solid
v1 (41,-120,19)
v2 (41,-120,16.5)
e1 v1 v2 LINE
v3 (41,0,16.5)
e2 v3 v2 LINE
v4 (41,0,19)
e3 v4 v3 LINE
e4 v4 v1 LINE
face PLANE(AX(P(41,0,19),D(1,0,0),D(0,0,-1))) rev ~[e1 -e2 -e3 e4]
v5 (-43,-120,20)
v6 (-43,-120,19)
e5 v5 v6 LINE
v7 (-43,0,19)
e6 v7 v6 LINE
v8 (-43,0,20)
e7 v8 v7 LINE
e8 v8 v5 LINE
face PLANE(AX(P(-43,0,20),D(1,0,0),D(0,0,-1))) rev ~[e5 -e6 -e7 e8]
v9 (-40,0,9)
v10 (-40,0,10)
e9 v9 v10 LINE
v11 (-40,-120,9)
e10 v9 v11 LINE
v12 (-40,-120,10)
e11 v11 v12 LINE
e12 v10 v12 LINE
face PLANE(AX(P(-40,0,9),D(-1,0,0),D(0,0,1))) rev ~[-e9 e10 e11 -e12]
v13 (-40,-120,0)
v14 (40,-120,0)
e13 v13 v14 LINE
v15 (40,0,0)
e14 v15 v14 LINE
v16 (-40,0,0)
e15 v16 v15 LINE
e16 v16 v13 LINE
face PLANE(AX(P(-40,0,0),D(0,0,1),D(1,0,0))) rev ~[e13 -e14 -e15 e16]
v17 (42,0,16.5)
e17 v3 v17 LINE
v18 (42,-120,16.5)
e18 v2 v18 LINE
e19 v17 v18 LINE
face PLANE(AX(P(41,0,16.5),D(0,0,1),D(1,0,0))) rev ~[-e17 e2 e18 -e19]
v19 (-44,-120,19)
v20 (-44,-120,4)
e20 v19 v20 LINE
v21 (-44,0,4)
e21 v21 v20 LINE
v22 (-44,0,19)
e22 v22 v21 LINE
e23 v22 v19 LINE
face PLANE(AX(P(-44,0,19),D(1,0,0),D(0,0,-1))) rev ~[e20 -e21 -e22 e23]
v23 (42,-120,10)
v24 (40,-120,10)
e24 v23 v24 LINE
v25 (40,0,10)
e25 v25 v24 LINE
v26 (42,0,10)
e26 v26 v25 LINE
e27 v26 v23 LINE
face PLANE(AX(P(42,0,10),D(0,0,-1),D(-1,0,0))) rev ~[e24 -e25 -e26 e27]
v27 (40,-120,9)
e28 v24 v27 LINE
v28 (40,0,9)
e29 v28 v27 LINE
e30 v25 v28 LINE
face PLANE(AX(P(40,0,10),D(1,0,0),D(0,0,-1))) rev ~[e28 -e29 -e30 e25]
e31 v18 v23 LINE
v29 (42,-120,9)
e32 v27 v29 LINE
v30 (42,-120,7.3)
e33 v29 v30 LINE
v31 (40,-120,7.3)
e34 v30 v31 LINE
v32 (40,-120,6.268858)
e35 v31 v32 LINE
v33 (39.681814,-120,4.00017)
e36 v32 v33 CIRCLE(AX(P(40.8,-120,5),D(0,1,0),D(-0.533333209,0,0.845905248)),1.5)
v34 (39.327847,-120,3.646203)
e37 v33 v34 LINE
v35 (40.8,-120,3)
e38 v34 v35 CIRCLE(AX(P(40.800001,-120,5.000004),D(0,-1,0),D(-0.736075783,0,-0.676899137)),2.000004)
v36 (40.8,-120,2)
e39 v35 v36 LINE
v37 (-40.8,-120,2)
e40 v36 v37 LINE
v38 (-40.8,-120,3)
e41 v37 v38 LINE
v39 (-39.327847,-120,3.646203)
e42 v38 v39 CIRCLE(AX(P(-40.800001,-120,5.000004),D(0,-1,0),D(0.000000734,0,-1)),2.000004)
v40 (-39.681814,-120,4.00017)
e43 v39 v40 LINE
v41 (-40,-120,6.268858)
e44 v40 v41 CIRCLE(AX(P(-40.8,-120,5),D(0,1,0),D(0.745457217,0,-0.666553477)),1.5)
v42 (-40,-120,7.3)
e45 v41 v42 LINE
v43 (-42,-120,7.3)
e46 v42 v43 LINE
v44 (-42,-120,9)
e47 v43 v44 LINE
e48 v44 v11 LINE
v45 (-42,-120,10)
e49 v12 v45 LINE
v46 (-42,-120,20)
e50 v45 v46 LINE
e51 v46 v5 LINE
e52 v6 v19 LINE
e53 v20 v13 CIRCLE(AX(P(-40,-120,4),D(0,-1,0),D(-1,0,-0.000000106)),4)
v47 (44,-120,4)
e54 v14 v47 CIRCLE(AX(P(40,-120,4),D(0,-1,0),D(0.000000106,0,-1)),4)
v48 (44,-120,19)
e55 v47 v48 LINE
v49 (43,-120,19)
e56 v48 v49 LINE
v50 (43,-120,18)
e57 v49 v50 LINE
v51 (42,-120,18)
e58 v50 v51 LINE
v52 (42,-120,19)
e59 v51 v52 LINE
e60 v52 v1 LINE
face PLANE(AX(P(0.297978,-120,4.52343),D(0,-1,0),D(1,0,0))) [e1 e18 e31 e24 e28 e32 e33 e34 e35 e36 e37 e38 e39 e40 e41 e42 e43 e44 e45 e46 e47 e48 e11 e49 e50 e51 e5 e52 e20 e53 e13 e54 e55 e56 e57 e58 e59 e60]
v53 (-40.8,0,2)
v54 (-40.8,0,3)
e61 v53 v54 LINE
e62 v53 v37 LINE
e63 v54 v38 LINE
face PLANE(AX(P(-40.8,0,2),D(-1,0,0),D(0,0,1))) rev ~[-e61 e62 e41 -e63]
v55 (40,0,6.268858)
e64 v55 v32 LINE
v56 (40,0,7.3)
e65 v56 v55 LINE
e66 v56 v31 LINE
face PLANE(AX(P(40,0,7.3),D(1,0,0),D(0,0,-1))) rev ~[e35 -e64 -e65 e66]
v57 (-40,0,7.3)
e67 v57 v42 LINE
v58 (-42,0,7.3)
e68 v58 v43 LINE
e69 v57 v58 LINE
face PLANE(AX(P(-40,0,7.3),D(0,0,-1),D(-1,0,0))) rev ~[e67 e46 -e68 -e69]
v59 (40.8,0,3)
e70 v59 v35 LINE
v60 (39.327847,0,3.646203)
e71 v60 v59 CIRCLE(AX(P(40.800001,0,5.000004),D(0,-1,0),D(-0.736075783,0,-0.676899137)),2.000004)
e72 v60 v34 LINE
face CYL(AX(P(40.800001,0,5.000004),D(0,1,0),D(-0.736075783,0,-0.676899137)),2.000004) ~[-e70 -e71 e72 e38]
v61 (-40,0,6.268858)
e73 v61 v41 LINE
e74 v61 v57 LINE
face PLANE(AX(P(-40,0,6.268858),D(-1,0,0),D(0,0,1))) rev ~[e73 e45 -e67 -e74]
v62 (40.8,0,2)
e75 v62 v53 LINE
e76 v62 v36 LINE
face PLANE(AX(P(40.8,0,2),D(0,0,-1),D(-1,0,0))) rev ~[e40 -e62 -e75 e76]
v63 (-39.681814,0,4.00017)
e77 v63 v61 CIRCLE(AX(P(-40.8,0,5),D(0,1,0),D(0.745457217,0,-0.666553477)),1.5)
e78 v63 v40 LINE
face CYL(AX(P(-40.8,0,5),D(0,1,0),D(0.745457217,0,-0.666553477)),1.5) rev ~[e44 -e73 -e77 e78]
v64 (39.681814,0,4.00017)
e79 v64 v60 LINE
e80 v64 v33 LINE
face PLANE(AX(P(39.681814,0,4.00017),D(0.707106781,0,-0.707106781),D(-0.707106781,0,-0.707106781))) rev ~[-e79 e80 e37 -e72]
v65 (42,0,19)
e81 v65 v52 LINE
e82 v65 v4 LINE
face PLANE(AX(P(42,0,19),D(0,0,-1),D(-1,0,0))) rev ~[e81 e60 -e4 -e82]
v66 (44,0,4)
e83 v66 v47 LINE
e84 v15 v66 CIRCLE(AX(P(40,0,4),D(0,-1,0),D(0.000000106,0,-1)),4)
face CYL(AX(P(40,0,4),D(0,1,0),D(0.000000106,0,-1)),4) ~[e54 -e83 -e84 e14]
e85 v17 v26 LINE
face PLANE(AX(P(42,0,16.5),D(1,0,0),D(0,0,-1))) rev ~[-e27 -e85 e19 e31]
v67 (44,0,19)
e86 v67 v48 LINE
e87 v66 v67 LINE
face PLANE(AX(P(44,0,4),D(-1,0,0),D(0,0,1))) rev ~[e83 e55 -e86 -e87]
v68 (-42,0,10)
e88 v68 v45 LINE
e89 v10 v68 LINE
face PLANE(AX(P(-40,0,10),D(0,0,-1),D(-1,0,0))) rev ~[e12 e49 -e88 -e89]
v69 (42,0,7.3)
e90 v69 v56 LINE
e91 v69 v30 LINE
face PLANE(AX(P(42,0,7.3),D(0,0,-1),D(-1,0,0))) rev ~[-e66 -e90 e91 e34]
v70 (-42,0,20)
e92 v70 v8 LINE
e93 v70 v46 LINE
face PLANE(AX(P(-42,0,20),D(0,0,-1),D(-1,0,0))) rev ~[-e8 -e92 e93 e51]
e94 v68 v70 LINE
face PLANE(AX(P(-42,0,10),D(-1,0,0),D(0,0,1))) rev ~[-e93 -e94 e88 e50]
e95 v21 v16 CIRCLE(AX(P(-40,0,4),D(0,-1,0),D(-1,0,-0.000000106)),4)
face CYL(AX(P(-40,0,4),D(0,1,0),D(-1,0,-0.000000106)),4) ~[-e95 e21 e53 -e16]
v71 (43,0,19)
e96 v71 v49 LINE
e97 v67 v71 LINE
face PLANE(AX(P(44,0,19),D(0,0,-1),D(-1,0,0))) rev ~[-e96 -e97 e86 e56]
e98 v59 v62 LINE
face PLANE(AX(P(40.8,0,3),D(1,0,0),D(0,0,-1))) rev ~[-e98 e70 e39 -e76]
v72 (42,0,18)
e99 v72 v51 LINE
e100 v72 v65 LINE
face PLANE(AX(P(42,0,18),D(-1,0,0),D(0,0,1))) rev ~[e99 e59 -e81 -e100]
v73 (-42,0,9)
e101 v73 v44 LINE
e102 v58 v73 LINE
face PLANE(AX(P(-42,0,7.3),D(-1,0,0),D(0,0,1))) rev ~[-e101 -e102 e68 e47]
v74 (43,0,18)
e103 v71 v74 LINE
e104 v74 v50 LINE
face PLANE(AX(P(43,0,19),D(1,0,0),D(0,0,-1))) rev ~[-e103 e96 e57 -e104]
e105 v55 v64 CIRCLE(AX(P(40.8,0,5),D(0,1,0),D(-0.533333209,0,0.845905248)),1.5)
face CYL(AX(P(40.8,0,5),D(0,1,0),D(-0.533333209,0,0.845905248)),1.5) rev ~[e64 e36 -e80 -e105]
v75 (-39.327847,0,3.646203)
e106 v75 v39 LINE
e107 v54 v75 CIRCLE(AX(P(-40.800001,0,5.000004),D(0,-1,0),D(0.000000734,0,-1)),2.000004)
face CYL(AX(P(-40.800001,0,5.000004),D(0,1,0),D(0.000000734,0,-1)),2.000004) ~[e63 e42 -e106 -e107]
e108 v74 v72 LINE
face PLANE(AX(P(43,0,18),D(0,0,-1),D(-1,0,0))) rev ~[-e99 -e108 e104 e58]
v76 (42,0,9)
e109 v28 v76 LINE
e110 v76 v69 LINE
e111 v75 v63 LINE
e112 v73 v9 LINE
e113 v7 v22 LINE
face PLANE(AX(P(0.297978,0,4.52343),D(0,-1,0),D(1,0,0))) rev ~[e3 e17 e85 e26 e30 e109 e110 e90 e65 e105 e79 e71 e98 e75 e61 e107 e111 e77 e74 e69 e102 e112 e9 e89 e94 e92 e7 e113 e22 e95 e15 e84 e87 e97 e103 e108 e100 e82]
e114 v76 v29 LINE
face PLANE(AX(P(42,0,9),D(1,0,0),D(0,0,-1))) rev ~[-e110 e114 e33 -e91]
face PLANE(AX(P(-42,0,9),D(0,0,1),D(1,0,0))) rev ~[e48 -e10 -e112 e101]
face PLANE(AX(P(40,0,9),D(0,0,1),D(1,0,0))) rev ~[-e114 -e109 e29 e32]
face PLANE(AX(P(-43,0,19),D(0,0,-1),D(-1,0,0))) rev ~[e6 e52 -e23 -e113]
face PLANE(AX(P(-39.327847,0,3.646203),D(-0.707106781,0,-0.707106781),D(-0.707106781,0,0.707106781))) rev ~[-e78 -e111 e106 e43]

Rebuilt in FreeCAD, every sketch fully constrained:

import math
import FreeCAD as App
import Part
import Sketcher
from FreeCAD import Vector

doc = App.newDocument("Part")
body = doc.addObject("PartDesign::Body", "Body")

# Sketch on XZ plane
sketch1 = doc.addObject("Sketcher::SketchObject", "Sketch")
body.addObject(sketch1)
sketch1.AttachmentSupport = (doc.XZ_Plane, [""])
sketch1.MapMode = "FlatFace"
sketch1.addGeometry(Part.ArcOfCircle(Part.Circle(Vector(-40, 4, 0), Vector(0, 0, 1), 4), math.radians(-180), math.radians(-90)), False)
sketch1.addGeometry(Part.LineSegment(Vector(-40, 0, 0), Vector(40, 0, 0)), False)
sketch1.addGeometry(Part.ArcOfCircle(Part.Circle(Vector(40, 4, 0), Vector(0, 0, 1), 4), math.radians(-90), math.radians(0)), False)
sketch1.addGeometry(Part.LineSegment(Vector(44, 4, 0), Vector(44, 19, 0)), False)
sketch1.addGeometry(Part.LineSegment(Vector(44, 19, 0), Vector(43, 19, 0)), False)
sketch1.addGeometry(Part.LineSegment(Vector(43, 19, 0), Vector(43, 18, 0)), False)
sketch1.addGeometry(Part.LineSegment(Vector(43, 18, 0), Vector(42, 18, 0)), False)
sketch1.addGeometry(Part.LineSegment(Vector(42, 18, 0), Vector(42, 19, 0)), False)
sketch1.addGeometry(Part.LineSegment(Vector(42, 19, 0), Vector(41, 19, 0)), False)
sketch1.addGeometry(Part.LineSegment(Vector(41, 19, 0), Vector(41, 16.5, 0)), False)
sketch1.addGeometry(Part.LineSegment(Vector(41, 16.5, 0), Vector(42, 16.5, 0)), False)
sketch1.addGeometry(Part.LineSegment(Vector(42, 16.5, 0), Vector(42, 10, 0)), False)
sketch1.addGeometry(Part.LineSegment(Vector(42, 10, 0), Vector(40, 10, 0)), False)
sketch1.addGeometry(Part.LineSegment(Vector(40, 10, 0), Vector(40, 9, 0)), False)
sketch1.addGeometry(Part.LineSegment(Vector(40, 9, 0), Vector(42, 9, 0)), False)
sketch1.addGeometry(Part.LineSegment(Vector(42, 9, 0), Vector(42, 7.3, 0)), False)
sketch1.addGeometry(Part.LineSegment(Vector(42, 7.3, 0), Vector(40, 7.3, 0)), False)
sketch1.addGeometry(Part.LineSegment(Vector(40, 7.3, 0), Vector(40, 6.3, 0)), False)
sketch1.addGeometry(Part.ArcOfCircle(Part.Circle(Vector(40.8, 5, 0), Vector(0, 0, 1), 1.5), math.radians(-138), math.radians(122)), False)
sketch1.addGeometry(Part.LineSegment(Vector(39.7, 4, 0), Vector(39.3, 3.6, 0)), False)
sketch1.addGeometry(Part.ArcOfCircle(Part.Circle(Vector(40.8, 5, 0), Vector(0, 0, 1), 2), math.radians(-137), math.radians(-90)), False)
sketch1.addGeometry(Part.LineSegment(Vector(40.8, 3, 0), Vector(40.8, 2, 0)), False)
sketch1.addGeometry(Part.LineSegment(Vector(40.8, 2, 0), Vector(-40.8, 2, 0)), False)
sketch1.addGeometry(Part.LineSegment(Vector(-40.8, 2, 0), Vector(-40.8, 3, 0)), False)
sketch1.addGeometry(Part.ArcOfCircle(Part.Circle(Vector(-40.8, 5, 0), Vector(0, 0, 1), 2), math.radians(-90), math.radians(-43)), False)
sketch1.addGeometry(Part.LineSegment(Vector(-39.3, 3.6, 0), Vector(-39.7, 4, 0)), False)
sketch1.addGeometry(Part.ArcOfCircle(Part.Circle(Vector(-40.8, 5, 0), Vector(0, 0, 1), 1.5), math.radians(58), math.radians(318)), False)
sketch1.addGeometry(Part.LineSegment(Vector(-40, 6.3, 0), Vector(-40, 7.3, 0)), False)
sketch1.addGeometry(Part.LineSegment(Vector(-40, 7.3, 0), Vector(-42, 7.3, 0)), False)
sketch1.addGeometry(Part.LineSegment(Vector(-42, 7.3, 0), Vector(-42, 9, 0)), False)
sketch1.addGeometry(Part.LineSegment(Vector(-42, 9, 0), Vector(-40, 9, 0)), False)
sketch1.addGeometry(Part.LineSegment(Vector(-40, 9, 0), Vector(-40, 10, 0)), False)
sketch1.addGeometry(Part.LineSegment(Vector(-40, 10, 0), Vector(-42, 10, 0)), False)
sketch1.addGeometry(Part.LineSegment(Vector(-42, 10, 0), Vector(-42, 20, 0)), False)
sketch1.addGeometry(Part.LineSegment(Vector(-42, 20, 0), Vector(-43, 20, 0)), False)
sketch1.addGeometry(Part.LineSegment(Vector(-43, 20, 0), Vector(-43, 19, 0)), False)
sketch1.addGeometry(Part.LineSegment(Vector(-43, 19, 0), Vector(-44, 19, 0)), False)
sketch1.addGeometry(Part.LineSegment(Vector(-44, 19, 0), Vector(-44, 4, 0)), False)
sketch1.addConstraint(Sketcher.Constraint("Tangent", 0, 2, 1, 1))
sketch1.addConstraint(Sketcher.Constraint("Tangent", 1, 2, 2, 1))
sketch1.addConstraint(Sketcher.Constraint("Tangent", 2, 2, 3, 1))
sketch1.addConstraint(Sketcher.Constraint("Coincident", 3, 2, 4, 1))
sketch1.addConstraint(Sketcher.Constraint("Coincident", 4, 2, 5, 1))
sketch1.addConstraint(Sketcher.Constraint("Coincident", 5, 2, 6, 1))
sketch1.addConstraint(Sketcher.Constraint("Coincident", 6, 2, 7, 1))
sketch1.addConstraint(Sketcher.Constraint("Coincident", 7, 2, 8, 1))
sketch1.addConstraint(Sketcher.Constraint("Coincident", 8, 2, 9, 1))
sketch1.addConstraint(Sketcher.Constraint("Coincident", 9, 2, 10, 1))
sketch1.addConstraint(Sketcher.Constraint("Coincident", 10, 2, 11, 1))
sketch1.addConstraint(Sketcher.Constraint("Coincident", 11, 2, 12, 1))
sketch1.addConstraint(Sketcher.Constraint("Coincident", 12, 2, 13, 1))
sketch1.addConstraint(Sketcher.Constraint("Coincident", 13, 2, 14, 1))
sketch1.addConstraint(Sketcher.Constraint("Coincident", 14, 2, 15, 1))
sketch1.addConstraint(Sketcher.Constraint("Coincident", 15, 2, 16, 1))
sketch1.addConstraint(Sketcher.Constraint("Coincident", 16, 2, 17, 1))
sketch1.addConstraint(Sketcher.Constraint("Coincident", 17, 2, 18, 2))
sketch1.addConstraint(Sketcher.Constraint("Coincident", 18, 1, 19, 1))
sketch1.addConstraint(Sketcher.Constraint("Coincident", 19, 2, 20, 1))
sketch1.addConstraint(Sketcher.Constraint("Coincident", 20, 2, 21, 1))
sketch1.addConstraint(Sketcher.Constraint("Coincident", 21, 2, 22, 1))
sketch1.addConstraint(Sketcher.Constraint("Coincident", 22, 2, 23, 1))
sketch1.addConstraint(Sketcher.Constraint("Coincident", 23, 2, 24, 1))
sketch1.addConstraint(Sketcher.Constraint("Coincident", 24, 2, 25, 1))
sketch1.addConstraint(Sketcher.Constraint("Coincident", 25, 2, 26, 2))
sketch1.addConstraint(Sketcher.Constraint("Coincident", 26, 1, 27, 1))
sketch1.addConstraint(Sketcher.Constraint("Coincident", 27, 2, 28, 1))
sketch1.addConstraint(Sketcher.Constraint("Coincident", 28, 2, 29, 1))
sketch1.addConstraint(Sketcher.Constraint("Coincident", 29, 2, 30, 1))
sketch1.addConstraint(Sketcher.Constraint("Coincident", 30, 2, 31, 1))
sketch1.addConstraint(Sketcher.Constraint("Coincident", 31, 2, 32, 1))
sketch1.addConstraint(Sketcher.Constraint("Coincident", 32, 2, 33, 1))
sketch1.addConstraint(Sketcher.Constraint("Coincident", 33, 2, 34, 1))
sketch1.addConstraint(Sketcher.Constraint("Coincident", 34, 2, 35, 1))
sketch1.addConstraint(Sketcher.Constraint("Coincident", 35, 2, 36, 1))
sketch1.addConstraint(Sketcher.Constraint("Coincident", 36, 2, 37, 1))
sketch1.addConstraint(Sketcher.Constraint("Tangent", 37, 2, 0, 1))
sketch1.addConstraint(Sketcher.Constraint("Horizontal", 1))
sketch1.addConstraint(Sketcher.Constraint("Vertical", 3))
sketch1.addConstraint(Sketcher.Constraint("Horizontal", 4))
sketch1.addConstraint(Sketcher.Constraint("Vertical", 5))
sketch1.addConstraint(Sketcher.Constraint("Horizontal", 6))
sketch1.addConstraint(Sketcher.Constraint("Vertical", 7))
sketch1.addConstraint(Sketcher.Constraint("Horizontal", 8))
sketch1.addConstraint(Sketcher.Constraint("Vertical", 9))
sketch1.addConstraint(Sketcher.Constraint("Horizontal", 10))
sketch1.addConstraint(Sketcher.Constraint("Vertical", 11))
sketch1.addConstraint(Sketcher.Constraint("Horizontal", 12))
sketch1.addConstraint(Sketcher.Constraint("Vertical", 13))
sketch1.addConstraint(Sketcher.Constraint("Horizontal", 14))
sketch1.addConstraint(Sketcher.Constraint("Vertical", 15))
sketch1.addConstraint(Sketcher.Constraint("Horizontal", 16))
sketch1.addConstraint(Sketcher.Constraint("Vertical", 17))
sketch1.addConstraint(Sketcher.Constraint("Vertical", 21))
sketch1.addConstraint(Sketcher.Constraint("Horizontal", 22))
sketch1.addConstraint(Sketcher.Constraint("Vertical", 23))
sketch1.addConstraint(Sketcher.Constraint("Vertical", 27))
sketch1.addConstraint(Sketcher.Constraint("Horizontal", 28))
sketch1.addConstraint(Sketcher.Constraint("Vertical", 29))
sketch1.addConstraint(Sketcher.Constraint("Horizontal", 30))
sketch1.addConstraint(Sketcher.Constraint("Vertical", 31))
sketch1.addConstraint(Sketcher.Constraint("Horizontal", 32))
sketch1.addConstraint(Sketcher.Constraint("Vertical", 33))
sketch1.addConstraint(Sketcher.Constraint("Horizontal", 34))
sketch1.addConstraint(Sketcher.Constraint("Vertical", 35))
sketch1.addConstraint(Sketcher.Constraint("Horizontal", 36))
sketch1.addConstraint(Sketcher.Constraint("Vertical", 37))
sketch1.addConstraint(Sketcher.Constraint("Coincident", 20, 3, 18, 3))
sketch1.addConstraint(Sketcher.Constraint("Coincident", 26, 3, 24, 3))
sketch1.addConstraint(Sketcher.Constraint("Equal", 0, 2))
sketch1.addConstraint(Sketcher.Constraint("Equal", 20, 24))
sketch1.addConstraint(Sketcher.Constraint("Equal", 18, 26))
sketch1.addConstraint(Sketcher.Constraint("Symmetric", 0, 2, 1, 2, -1, 1))
sketch1.addConstraint(Sketcher.Constraint("Symmetric", 18, 3, 24, 3, -2))
sketch1.addConstraint(Sketcher.Constraint("Symmetric", 16, 2, 27, 2, -2))
sketch1.addConstraint(Sketcher.Constraint("Symmetric", 14, 2, 29, 2, -2))
sketch1.addConstraint(Sketcher.Constraint("Symmetric", 12, 2, 31, 2, -2))
sketch1.addConstraint(Sketcher.Constraint("Symmetric", 4, 2, 35, 2, -2))
sketch1.addConstraint(Sketcher.Constraint("Perpendicular", 19, 25))
sketch1.addConstraint(Sketcher.Constraint("Horizontal", 4, 2, 7, 2))
sketch1.addConstraint(Sketcher.Constraint("Horizontal", 19, 2, 24, 2))
sketch1.addConstraint(Sketcher.Constraint("Horizontal", 18, 1, 25, 2))
sketch1.addConstraint(Sketcher.Constraint("Vertical", 7, 2, 10, 2))
sketch1.addConstraint(Sketcher.Constraint("Vertical", 1, 2, 12, 2))
sketch1.addConstraint(Sketcher.Constraint("Vertical", 11, 2, 14, 2))
sketch1.addConstraint(Sketcher.Constraint("Vertical", 13, 2, 16, 2))
sketch1.addConstraint(Sketcher.Constraint("Vertical", 18, 3, 20, 2))
sketch1.addConstraint(Sketcher.Constraint("Vertical", 26, 3, 22, 2))
sketch1.addConstraint(Sketcher.Constraint("Vertical", 29, 2, 32, 2))
sketch1.addConstraint(Sketcher.Constraint("Equal", 4, 6))
sketch1.addConstraint(Sketcher.Constraint("Equal", 6, 8))
sketch1.addConstraint(Sketcher.Constraint("Equal", 36, 5))
sketch1.addConstraint(Sketcher.Constraint("Equal", 7, 13))
sketch1.addConstraint(Sketcher.Constraint("Equal", 13, 21))
sketch1.addConstraint(Sketcher.Constraint("Equal", 31, 35))
sketch1.addConstraint(Sketcher.Constraint("Radius", 0, 4.0))
sketch1.addConstraint(Sketcher.Constraint("Radius", 18, 1.5))
sketch1.addConstraint(Sketcher.Constraint("DistanceX", 1, 1, 1, 2, 80.0))
sketch1.addConstraint(Sketcher.Constraint("DistanceX", 4, 2, 4, 1, 1.0))
sketch1.addConstraint(Sketcher.Constraint("DistanceY", 3, 1, 3, 2, 15.0))
sketch1.addConstraint(Sketcher.Constraint("DistanceY", 33, 1, 33, 2, 10.0))
sketch1.addConstraint(Sketcher.Constraint("DistanceX", 22, 2, 22, 1, 81.6))
sketch1.addConstraint(Sketcher.Constraint("DistanceY", 9, 2, 9, 1, 2.5))
sketch1.addConstraint(Sketcher.Constraint("DistanceY", 15, 2, 15, 1, 1.7))
sketch1.addConstraint(Sketcher.Constraint("DistanceY", -1, 1, 18, 3, 5.0))
sketch1.addConstraint(Sketcher.Constraint("DistanceY", -1, 1, 20, 2, 3.0))
sketch1.addConstraint(Sketcher.Constraint("DistanceY", 19, 2, 20, 3, 1.353801))
pad1 = doc.addObject("PartDesign::Pad", "Pad")
body.addObject(pad1)
pad1.Profile = sketch1
pad1.Length = 120

doc.recompute()
